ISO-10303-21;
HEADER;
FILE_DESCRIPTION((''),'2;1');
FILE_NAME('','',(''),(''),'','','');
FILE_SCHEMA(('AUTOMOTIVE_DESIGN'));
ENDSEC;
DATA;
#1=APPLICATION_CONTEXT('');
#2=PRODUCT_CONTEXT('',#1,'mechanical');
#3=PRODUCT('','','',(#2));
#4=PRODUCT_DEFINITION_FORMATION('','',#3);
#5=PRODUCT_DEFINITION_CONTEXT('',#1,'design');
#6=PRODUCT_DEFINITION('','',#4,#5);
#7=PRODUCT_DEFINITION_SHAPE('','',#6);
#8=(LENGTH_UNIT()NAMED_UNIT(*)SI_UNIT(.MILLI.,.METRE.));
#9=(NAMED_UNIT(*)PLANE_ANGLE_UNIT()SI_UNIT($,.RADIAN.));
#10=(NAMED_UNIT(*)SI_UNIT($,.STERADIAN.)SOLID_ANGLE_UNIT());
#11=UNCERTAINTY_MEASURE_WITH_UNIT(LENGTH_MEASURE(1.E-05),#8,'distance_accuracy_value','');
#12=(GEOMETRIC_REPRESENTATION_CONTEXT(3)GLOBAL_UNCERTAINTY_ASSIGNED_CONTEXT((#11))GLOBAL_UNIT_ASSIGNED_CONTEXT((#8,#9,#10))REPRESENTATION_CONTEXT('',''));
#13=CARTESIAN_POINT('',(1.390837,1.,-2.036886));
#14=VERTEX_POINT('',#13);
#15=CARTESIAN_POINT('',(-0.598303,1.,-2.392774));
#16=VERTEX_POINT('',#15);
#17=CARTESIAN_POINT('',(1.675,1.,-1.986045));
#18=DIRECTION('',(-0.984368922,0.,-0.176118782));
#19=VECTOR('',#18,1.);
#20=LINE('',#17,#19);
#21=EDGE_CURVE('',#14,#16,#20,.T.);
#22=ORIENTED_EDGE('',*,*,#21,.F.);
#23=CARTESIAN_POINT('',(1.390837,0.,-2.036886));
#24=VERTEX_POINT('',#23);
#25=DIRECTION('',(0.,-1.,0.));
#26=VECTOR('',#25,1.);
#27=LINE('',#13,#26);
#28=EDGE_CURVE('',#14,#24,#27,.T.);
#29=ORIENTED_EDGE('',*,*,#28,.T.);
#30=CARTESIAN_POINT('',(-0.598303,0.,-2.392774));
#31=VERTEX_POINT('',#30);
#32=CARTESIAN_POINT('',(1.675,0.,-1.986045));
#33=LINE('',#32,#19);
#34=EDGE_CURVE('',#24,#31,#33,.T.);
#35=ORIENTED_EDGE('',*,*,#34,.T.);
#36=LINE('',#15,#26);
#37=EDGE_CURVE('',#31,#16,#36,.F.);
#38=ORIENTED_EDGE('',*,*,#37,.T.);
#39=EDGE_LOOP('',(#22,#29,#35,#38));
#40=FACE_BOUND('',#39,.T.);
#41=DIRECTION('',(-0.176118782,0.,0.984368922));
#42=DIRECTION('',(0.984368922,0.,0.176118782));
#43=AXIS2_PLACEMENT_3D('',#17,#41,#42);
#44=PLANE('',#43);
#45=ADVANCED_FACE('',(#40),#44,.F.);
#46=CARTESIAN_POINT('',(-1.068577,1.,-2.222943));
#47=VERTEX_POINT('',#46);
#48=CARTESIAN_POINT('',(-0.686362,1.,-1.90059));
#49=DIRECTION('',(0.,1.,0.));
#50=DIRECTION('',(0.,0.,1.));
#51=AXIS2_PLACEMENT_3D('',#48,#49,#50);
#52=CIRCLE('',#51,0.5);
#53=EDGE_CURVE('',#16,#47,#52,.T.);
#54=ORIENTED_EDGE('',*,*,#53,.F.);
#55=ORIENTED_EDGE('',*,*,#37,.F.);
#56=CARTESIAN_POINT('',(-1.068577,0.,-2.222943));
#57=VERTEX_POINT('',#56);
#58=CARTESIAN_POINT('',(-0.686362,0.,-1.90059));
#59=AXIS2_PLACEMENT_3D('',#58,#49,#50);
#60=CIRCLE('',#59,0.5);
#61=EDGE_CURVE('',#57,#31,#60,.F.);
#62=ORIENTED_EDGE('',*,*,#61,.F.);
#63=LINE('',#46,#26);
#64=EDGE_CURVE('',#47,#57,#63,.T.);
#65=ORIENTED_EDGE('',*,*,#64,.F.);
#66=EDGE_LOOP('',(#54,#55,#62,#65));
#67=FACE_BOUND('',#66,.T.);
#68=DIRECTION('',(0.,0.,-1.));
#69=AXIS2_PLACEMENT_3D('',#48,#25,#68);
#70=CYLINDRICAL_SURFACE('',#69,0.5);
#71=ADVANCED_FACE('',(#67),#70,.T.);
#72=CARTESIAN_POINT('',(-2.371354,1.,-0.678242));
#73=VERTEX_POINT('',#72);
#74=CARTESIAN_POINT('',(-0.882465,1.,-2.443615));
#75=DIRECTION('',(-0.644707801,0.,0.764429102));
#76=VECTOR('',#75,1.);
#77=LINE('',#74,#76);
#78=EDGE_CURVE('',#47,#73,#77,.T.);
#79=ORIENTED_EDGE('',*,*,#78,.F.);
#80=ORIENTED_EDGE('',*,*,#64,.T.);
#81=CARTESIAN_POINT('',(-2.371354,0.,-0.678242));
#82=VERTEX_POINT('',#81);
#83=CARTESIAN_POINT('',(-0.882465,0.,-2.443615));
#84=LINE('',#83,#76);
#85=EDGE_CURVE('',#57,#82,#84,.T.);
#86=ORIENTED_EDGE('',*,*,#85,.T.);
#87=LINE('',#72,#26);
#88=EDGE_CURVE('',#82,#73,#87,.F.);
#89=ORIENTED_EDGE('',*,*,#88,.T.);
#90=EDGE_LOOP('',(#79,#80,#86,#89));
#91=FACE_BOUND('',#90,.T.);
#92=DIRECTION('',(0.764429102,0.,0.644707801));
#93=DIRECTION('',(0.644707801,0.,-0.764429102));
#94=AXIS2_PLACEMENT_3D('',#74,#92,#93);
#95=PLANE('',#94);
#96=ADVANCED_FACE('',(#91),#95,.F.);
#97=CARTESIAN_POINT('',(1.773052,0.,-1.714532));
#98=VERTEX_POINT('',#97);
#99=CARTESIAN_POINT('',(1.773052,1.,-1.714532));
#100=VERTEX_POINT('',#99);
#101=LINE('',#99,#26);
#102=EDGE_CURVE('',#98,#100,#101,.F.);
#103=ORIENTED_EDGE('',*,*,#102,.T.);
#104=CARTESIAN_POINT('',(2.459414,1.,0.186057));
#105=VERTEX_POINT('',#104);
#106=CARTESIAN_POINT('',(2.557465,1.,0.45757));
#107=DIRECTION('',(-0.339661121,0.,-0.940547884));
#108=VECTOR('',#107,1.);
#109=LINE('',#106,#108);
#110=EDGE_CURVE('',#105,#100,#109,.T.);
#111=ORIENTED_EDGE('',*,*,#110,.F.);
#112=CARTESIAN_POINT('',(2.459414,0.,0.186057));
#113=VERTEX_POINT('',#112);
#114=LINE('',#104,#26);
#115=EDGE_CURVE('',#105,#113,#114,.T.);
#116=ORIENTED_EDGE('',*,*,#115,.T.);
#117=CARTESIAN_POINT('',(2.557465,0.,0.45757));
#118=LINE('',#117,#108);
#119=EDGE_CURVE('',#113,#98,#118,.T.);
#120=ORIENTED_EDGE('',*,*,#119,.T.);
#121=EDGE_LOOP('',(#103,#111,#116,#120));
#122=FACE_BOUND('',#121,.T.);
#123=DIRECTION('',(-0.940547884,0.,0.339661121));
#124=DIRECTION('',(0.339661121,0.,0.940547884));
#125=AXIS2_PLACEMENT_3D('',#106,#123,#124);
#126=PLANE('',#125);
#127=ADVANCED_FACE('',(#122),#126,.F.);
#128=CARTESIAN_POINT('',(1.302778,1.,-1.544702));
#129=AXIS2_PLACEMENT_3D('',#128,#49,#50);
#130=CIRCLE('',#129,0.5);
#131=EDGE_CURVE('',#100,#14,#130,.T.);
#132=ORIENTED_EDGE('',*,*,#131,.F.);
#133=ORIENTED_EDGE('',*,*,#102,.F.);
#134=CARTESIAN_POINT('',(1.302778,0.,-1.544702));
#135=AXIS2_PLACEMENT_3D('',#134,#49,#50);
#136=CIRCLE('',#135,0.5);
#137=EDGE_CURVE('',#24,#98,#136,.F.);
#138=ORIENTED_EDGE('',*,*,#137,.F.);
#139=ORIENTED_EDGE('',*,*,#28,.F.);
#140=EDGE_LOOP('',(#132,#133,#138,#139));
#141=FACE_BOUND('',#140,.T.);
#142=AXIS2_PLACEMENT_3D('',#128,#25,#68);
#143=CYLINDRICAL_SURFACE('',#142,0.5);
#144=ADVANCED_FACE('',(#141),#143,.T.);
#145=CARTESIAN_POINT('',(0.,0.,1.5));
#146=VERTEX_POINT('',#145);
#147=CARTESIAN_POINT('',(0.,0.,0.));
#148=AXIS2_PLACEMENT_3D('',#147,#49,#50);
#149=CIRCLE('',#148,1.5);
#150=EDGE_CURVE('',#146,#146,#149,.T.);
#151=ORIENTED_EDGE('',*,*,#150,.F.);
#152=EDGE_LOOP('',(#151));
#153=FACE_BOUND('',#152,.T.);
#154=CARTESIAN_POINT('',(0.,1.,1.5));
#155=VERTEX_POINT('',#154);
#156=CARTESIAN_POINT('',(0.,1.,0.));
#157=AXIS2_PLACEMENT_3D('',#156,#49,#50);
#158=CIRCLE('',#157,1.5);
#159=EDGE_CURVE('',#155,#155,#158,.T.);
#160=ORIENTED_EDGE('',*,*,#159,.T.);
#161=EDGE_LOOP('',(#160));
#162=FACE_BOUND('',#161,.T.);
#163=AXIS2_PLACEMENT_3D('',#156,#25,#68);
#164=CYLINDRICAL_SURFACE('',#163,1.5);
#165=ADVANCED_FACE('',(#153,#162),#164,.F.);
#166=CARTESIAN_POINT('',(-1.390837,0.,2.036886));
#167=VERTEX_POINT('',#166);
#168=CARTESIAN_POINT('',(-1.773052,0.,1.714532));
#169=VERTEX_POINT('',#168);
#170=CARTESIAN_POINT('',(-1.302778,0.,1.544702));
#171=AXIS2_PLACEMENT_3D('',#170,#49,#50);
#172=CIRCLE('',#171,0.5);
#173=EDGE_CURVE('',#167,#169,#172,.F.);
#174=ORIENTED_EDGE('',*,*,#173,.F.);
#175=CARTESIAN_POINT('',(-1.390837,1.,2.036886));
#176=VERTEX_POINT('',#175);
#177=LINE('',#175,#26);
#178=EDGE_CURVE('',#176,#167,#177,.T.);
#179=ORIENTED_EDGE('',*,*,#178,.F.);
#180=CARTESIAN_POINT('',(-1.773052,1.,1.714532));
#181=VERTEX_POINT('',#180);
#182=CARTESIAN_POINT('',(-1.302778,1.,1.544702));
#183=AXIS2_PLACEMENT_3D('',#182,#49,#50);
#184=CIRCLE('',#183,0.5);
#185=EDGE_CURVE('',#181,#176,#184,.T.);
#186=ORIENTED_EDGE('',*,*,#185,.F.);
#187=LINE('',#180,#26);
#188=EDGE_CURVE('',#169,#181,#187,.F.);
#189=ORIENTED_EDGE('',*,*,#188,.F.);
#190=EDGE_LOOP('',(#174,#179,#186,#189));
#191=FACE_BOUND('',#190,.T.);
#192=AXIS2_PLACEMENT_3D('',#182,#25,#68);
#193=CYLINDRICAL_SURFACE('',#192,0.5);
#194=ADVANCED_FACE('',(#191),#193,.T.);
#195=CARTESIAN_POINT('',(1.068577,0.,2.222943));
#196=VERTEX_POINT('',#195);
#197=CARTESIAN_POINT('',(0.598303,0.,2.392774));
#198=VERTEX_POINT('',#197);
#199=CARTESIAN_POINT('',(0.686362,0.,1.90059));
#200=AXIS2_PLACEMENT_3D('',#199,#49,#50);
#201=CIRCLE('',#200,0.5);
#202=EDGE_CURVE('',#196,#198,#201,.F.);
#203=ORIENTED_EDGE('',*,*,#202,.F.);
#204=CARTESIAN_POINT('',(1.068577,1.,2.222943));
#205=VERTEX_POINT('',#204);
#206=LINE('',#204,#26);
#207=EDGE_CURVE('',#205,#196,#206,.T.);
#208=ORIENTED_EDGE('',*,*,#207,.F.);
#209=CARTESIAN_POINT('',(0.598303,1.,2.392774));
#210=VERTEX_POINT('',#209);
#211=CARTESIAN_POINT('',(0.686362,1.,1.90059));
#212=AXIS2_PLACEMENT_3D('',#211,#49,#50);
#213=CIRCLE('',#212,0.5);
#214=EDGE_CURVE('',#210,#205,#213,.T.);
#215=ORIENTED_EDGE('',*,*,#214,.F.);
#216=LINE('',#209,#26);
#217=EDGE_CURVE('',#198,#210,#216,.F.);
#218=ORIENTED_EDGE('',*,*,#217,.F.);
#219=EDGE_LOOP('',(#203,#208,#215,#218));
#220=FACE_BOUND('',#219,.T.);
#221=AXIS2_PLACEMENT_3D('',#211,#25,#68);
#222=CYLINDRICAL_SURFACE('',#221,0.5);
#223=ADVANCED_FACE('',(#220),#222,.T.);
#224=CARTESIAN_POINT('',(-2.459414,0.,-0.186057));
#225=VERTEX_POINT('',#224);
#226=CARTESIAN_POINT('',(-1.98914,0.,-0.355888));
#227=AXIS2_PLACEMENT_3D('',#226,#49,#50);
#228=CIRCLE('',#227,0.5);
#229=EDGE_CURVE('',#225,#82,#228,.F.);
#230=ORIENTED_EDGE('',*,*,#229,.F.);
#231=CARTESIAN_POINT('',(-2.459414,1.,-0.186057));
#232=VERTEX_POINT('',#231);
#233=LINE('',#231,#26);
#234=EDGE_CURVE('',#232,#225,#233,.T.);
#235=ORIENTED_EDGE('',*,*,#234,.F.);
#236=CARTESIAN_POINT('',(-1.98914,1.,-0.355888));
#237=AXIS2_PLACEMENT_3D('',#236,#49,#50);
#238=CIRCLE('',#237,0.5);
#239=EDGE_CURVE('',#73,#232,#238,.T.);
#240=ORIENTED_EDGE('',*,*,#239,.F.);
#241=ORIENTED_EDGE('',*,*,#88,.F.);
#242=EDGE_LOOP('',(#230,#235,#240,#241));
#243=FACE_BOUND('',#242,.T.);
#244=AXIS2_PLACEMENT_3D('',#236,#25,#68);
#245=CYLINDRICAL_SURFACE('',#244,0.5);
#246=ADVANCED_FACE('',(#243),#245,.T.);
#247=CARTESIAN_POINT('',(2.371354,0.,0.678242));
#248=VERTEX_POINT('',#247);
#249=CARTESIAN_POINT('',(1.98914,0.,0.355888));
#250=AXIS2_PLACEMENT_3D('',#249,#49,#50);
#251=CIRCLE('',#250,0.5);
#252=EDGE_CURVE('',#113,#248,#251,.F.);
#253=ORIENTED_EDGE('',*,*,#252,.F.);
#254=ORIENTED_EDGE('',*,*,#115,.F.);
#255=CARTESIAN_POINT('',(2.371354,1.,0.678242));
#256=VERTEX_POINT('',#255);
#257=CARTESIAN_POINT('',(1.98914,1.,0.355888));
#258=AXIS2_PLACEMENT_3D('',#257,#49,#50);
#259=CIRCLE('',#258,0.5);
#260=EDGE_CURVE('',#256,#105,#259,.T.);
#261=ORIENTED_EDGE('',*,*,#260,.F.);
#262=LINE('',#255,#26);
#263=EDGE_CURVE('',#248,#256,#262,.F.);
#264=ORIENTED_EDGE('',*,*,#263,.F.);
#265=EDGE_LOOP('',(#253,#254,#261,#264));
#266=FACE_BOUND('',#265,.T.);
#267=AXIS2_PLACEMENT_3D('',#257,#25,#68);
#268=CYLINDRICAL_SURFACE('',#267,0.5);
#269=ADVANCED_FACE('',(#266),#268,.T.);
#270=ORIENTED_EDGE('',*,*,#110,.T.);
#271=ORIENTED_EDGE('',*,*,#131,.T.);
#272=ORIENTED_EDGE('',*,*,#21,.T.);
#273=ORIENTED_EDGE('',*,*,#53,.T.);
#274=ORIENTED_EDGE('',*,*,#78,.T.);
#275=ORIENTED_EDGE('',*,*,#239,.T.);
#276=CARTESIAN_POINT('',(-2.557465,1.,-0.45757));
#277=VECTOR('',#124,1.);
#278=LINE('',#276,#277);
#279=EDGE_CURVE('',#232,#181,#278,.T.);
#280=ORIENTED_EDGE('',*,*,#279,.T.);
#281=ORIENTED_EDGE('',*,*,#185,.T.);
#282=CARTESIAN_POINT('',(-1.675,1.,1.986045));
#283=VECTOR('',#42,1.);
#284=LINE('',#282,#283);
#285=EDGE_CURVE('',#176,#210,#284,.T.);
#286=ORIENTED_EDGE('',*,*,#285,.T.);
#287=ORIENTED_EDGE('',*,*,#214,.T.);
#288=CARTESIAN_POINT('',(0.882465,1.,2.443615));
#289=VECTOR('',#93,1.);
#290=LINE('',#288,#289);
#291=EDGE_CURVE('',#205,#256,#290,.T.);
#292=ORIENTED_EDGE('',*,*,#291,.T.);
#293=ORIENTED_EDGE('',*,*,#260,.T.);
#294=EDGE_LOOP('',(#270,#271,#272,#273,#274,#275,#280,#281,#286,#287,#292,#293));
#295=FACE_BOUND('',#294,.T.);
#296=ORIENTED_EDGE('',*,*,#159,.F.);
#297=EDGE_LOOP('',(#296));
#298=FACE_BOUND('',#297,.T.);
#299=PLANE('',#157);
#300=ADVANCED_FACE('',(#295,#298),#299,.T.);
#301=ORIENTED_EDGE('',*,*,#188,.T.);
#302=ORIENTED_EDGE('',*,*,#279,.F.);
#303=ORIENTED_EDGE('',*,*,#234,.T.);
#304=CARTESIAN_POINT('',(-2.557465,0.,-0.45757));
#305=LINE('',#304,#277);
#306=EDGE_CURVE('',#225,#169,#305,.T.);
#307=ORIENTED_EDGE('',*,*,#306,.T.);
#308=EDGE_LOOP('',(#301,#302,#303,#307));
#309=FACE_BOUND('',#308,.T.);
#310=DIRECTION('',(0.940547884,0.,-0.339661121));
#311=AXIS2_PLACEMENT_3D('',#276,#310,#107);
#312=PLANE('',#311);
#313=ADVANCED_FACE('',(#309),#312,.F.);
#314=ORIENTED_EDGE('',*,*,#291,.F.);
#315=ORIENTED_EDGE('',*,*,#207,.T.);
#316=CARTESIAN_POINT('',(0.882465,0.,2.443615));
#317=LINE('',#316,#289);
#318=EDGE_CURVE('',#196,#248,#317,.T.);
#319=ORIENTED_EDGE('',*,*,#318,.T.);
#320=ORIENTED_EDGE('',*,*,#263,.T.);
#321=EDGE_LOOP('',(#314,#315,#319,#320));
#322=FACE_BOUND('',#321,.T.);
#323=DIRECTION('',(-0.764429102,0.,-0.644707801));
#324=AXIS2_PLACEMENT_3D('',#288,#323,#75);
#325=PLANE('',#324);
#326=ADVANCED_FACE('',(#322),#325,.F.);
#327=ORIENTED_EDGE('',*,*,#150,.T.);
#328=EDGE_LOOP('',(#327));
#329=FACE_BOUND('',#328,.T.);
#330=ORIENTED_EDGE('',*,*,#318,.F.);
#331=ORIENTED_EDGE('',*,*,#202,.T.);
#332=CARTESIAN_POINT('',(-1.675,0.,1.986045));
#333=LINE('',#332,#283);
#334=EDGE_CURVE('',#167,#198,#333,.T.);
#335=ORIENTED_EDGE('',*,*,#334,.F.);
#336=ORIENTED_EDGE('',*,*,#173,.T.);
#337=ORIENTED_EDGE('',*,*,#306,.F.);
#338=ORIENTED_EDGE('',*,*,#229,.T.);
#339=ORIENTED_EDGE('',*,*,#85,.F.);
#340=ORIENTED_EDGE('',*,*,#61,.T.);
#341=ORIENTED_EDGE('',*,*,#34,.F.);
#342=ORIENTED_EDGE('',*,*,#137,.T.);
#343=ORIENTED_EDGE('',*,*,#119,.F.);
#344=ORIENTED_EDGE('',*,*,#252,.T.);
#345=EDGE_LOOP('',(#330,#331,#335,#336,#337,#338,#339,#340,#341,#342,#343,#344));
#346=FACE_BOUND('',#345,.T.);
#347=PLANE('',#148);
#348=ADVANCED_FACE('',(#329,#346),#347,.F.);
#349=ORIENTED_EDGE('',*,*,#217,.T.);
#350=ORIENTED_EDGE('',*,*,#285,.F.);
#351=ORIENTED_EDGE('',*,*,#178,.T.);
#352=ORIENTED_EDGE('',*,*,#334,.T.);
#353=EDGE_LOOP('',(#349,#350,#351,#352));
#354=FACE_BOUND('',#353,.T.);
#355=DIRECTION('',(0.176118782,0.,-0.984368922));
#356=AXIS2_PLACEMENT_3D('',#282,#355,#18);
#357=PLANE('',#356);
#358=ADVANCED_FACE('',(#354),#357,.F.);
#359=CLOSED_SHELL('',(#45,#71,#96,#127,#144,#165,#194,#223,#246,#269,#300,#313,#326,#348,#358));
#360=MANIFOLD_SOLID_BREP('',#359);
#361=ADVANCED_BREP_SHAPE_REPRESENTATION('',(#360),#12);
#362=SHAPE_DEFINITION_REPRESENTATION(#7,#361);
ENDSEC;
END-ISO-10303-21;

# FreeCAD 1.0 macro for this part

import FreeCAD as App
import Part
import Sketcher

V = App.Vector


def edges_at(feature, points):
    """Names of the edges that pass closest to the given points."""
    edges = feature.Shape.Edges
    near = lambda p: min(range(len(edges)), key=lambda i: edges[i].distToShape(Part.Vertex(*p))[0])
    return sorted({f"Edge{near(p) + 1}" for p in points})

doc = App.newDocument("Part")
body = doc.addObject("PartDesign::Body", "Body")

# Sketch on XZ plane
sketch1 = body.newObject("Sketcher::SketchObject", "Sketch")
sketch1.AttachmentSupport = (doc.getObject("XZ_Plane"), [""])
sketch1.MapMode = "FlatFace"
sketch1.addGeometry([
    Part.LineSegment(V(-0.9, -2.4, 0), V(-2.6, -0.5, 0)),  # 0
    Part.LineSegment(V(-2.6, -0.5, 0), V(-1.7, 2, 0)),  # 1
    Part.LineSegment(V(-1.7, 2, 0), V(0.9, 2.4, 0)),  # 2
    Part.LineSegment(V(0.9, 2.4, 0), V(2.6, 0.5, 0)),  # 3
    Part.LineSegment(V(2.6, 0.5, 0), V(1.7, -2, 0)),  # 4
    Part.LineSegment(V(1.7, -2, 0), V(-0.9, -2.4, 0)),  # 5
    Part.Circle(V(0, 0, 0), V(0, 0, 1), 1.5),  # 6
], False)
sketch1.addConstraint([
    Sketcher.Constraint("Coincident", 0, 2, 1, 1),
    Sketcher.Constraint("Coincident", 1, 2, 2, 1),
    Sketcher.Constraint("Coincident", 2, 2, 3, 1),
    Sketcher.Constraint("Coincident", 3, 2, 4, 1),
    Sketcher.Constraint("Coincident", 4, 2, 5, 1),
    Sketcher.Constraint("Coincident", 5, 2, 0, 1),
    Sketcher.Constraint("Coincident", 6, 3, -1, 1),
    Sketcher.Constraint("Symmetric", 0, 2, 3, 2, -1, 1),
    Sketcher.Constraint("Symmetric", 1, 2, 4, 2, -1, 1),
    Sketcher.Constraint("Symmetric", 2, 2, 5, 2, -1, 1),
    Sketcher.Constraint("Equal", 0, 1),
    Sketcher.Constraint("Equal", 1, 2),
    Sketcher.Constraint("Diameter", 6, 3.0),
    Sketcher.Constraint("DistanceX", 1, 2, 4, 2, 3.35),
    Sketcher.Constraint("DistanceX", 2, 2, 3, 2, 1.675),
    Sketcher.Constraint("DistanceY", 0, 2, -1, 1, 0.45757),
    Sketcher.Constraint("DistanceY", 1, 2, 2, 2, 0.45757),
])
pad1 = body.newObject("PartDesign::Pad", "Pad")
pad1.Profile = sketch1
pad1.Length = 1
pad1.Reversed = True
doc.recompute()

fillet = body.newObject("PartDesign::Fillet", "Fillet")
fillet.Base = (pad1, edges_at(pad1, [
    (1.675, 0.5, -1.986),
    (2.557, 0.5, 0.458),
    (0.882, 0.5, 2.444),
    (-1.675, 0.5, 1.986),
    (-2.557, 0.5, -0.458),
    (-0.882, 0.5, -2.444),
]))
fillet.Radius = 0.5

doc.recompute()
